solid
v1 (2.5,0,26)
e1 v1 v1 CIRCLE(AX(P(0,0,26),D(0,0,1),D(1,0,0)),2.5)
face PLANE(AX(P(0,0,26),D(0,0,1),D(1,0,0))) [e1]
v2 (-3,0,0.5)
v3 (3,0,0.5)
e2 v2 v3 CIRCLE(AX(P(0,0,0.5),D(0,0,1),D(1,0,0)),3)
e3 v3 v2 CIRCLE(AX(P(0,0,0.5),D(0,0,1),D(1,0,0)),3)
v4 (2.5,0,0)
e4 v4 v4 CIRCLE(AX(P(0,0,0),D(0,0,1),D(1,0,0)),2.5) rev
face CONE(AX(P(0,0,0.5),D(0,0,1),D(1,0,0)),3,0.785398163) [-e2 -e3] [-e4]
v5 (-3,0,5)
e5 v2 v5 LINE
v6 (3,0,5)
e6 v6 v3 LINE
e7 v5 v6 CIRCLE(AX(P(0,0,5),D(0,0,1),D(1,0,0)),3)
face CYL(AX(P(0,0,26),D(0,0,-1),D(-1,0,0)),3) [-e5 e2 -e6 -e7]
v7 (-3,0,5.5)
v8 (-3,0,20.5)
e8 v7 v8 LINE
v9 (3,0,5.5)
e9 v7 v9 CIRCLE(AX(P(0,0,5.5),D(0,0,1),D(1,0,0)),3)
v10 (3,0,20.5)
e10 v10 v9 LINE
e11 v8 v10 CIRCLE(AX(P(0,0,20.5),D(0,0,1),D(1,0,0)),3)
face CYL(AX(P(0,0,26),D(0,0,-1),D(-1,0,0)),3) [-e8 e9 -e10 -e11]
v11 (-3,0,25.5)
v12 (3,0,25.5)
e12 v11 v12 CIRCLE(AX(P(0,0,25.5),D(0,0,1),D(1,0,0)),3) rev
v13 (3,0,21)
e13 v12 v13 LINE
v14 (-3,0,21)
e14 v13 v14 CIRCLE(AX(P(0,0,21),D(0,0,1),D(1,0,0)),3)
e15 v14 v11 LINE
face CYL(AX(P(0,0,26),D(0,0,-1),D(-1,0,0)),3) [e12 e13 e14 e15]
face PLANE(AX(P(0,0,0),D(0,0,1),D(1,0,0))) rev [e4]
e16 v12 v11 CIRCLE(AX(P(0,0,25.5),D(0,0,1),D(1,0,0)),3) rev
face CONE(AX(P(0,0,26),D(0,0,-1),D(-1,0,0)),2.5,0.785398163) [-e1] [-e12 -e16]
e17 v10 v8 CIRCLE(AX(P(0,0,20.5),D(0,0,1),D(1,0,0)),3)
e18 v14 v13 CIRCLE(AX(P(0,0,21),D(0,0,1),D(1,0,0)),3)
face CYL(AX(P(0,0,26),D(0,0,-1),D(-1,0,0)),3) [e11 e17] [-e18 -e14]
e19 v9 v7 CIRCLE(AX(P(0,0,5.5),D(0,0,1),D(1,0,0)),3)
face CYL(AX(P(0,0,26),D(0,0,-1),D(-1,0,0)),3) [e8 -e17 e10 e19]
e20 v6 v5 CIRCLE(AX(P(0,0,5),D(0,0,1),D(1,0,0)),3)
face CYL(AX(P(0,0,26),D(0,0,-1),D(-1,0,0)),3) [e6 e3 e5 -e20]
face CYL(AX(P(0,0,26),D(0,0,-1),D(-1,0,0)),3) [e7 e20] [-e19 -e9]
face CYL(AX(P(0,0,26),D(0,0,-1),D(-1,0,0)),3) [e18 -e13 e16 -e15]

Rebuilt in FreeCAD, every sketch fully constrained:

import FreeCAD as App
import Part
import Sketcher
Q = App.Units.Quantity


def edges_at(feature, points):
    """Names of the edges that pass closest to the given points."""
    edges = feature.Shape.Edges
    near = lambda p: min(range(len(edges)), key=lambda i: edges[i].distToShape(Part.Vertex(*p))[0])
    return sorted({f"Edge{near(p) + 1}" for p in points})

doc = App.newDocument("Part")
body = doc.addObject("PartDesign::Body", "Body")

sketch1 = body.newObject("Sketcher::SketchObject", "Sketch")
sketch1.AttachmentSupport = (doc.getObject("XY_Plane"), [""])
sketch1.MapMode = "FlatFace"
sketch1.addGeometry(Part.Circle(App.Vector(0, 0, 0), App.Vector(0, 0, 1), 3), False)
sketch1.addConstraint(Sketcher.Constraint("Coincident", 0, 3, -1, 1))
sketch1.addConstraint(Sketcher.Constraint("Diameter", 0, Q("6 mm")))
pad1 = body.newObject("PartDesign::Pad", "Pad")
pad1.Profile = sketch1
pad1.Length = 26
doc.recompute()

chamfer = body.newObject("PartDesign::Chamfer", "Chamfer")
chamfer.Base = (pad1, edges_at(pad1, [(-3, 0, 0), (-3, 0, 26)]))
chamfer.Size = 0.5

doc.recompute()
